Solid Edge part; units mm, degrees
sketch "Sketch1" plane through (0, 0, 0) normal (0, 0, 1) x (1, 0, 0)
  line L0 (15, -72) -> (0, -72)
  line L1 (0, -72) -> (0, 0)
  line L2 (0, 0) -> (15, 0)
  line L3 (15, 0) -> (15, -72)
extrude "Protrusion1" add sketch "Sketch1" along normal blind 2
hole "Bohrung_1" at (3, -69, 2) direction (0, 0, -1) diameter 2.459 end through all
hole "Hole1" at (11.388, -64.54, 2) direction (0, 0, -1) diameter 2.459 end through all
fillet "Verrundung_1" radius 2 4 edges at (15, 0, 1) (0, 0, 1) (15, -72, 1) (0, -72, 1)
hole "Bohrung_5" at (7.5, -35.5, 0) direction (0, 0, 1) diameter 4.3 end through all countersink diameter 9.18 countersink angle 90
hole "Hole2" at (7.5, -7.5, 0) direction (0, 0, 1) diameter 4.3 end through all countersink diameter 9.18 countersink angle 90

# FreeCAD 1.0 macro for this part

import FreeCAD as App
import Part
import Sketcher

V = App.Vector


def edges_at(feature, points):
    """Names of the edges that pass closest to the given points."""
    edges = feature.Shape.Edges
    near = lambda p: min(range(len(edges)), key=lambda i: edges[i].distToShape(Part.Vertex(*p))[0])
    return sorted({f"Edge{near(p) + 1}" for p in points})


def add_polygon(sketch, points):
    """Adds a closed chain of lines whose ends are joined by coincident constraints."""
    first, n = sketch.GeometryCount, len(points)
    for a, b in zip(points, points[1:] + points[:1]):
        sketch.addGeometry(Part.LineSegment(App.Vector(*a, 0), App.Vector(*b, 0)), False)
    for i in range(n):
        sketch.addConstraint(Sketcher.Constraint("Coincident", first + i, 2, first + (i + 1) % n, 1))

doc = App.newDocument("Part")
body = doc.addObject("PartDesign::Body", "Body")

# Sketch on XY plane
sketch1 = body.newObject("Sketcher::SketchObject", "Sketch")
sketch1.AttachmentSupport = (doc.getObject("XY_Plane"), [""])
sketch1.MapMode = "FlatFace"
add_polygon(sketch1, [(0, -72), (15, -72), (15, 0), (0, 0)])  # lines 0-3
sketch1.addConstraint(Sketcher.Constraint("Horizontal", 0))
sketch1.addConstraint(Sketcher.Constraint("Vertical", 1))
sketch1.addConstraint(Sketcher.Constraint("Horizontal", 2))
sketch1.addConstraint(Sketcher.Constraint("Vertical", 3))
sketch1.addConstraint(Sketcher.Constraint("Coincident", 2, 2, -1, 1))
sketch1.addConstraint(Sketcher.Constraint("DistanceX", 0, 1, 0, 2, 15.0))
sketch1.addConstraint(Sketcher.Constraint("DistanceY", 1, 1, 1, 2, 72.0))
pad1 = body.newObject("PartDesign::Pad", "Pad")
pad1.Profile = sketch1
pad1.Length = 2

# Sketch on XY plane
sketch2 = body.newObject("Sketcher::SketchObject", "Sketch001")
sketch2.AttachmentSupport = (doc.getObject("XY_Plane"), [""])
sketch2.MapMode = "FlatFace"
sketch2.AttachmentOffset = App.Placement(V(0, 0, 2), App.Rotation())
sketch2.addGeometry(Part.Circle(V(3, -69, 0), V(0, 0, 1), 1.2295), False)
sketch2.addConstraint(Sketcher.Constraint("Diameter", 0, 2.459))
sketch2.addConstraint(Sketcher.Constraint("DistanceX", -1, 1, 0, 3, 3.0))
sketch2.addConstraint(Sketcher.Constraint("DistanceY", 0, 3, -1, 1, 69.0))
doc.recompute()
hole = body.newObject("PartDesign::Hole", "Hole")
hole.Profile = sketch2
hole.ThreadType = "None"
hole.Diameter = 2.459
hole.DepthType = "ThroughAll"

# Sketch on XY plane
sketch3 = body.newObject("Sketcher::SketchObject", "Sketch002")
sketch3.AttachmentSupport = (doc.getObject("XY_Plane"), [""])
sketch3.MapMode = "FlatFace"
sketch3.AttachmentOffset = App.Placement(V(0, 0, 2), App.Rotation())
sketch3.addGeometry(Part.Circle(V(11.388, -64.54, 0), V(0, 0, 1), 1.2295), False)
sketch3.addConstraint(Sketcher.Constraint("Diameter", 0, 2.459))
sketch3.addConstraint(Sketcher.Constraint("DistanceY", 0, 3, -1, 1, 64.54))
sketch3.addConstraint(Sketcher.Constraint("DistanceX", -1, 1, 0, 3, 11.388))
doc.recompute()
hole2 = body.newObject("PartDesign::Hole", "Hole001")
hole2.Profile = sketch3
hole2.ThreadType = "None"
hole2.Diameter = 2.459
hole2.DepthType = "ThroughAll"
doc.recompute()

fillet = body.newObject("PartDesign::Fillet", "Fillet")
fillet.Base = (hole2, edges_at(hole2, [
    (15, 0, 1),
    (0, 0, 1),
    (15, -72, 1),
    (0, -72, 1),
]))
fillet.Radius = 2

# Sketch on XY plane
sketch4 = body.newObject("Sketcher::SketchObject", "Sketch003")
sketch4.AttachmentSupport = (doc.getObject("XY_Plane"), [""])
sketch4.MapMode = "FlatFace"
sketch4.addGeometry(Part.Circle(V(7.5, -35.5, 0), V(0, 0, 1), 2.15), False)
sketch4.addConstraint(Sketcher.Constraint("Diameter", 0, 4.3))
sketch4.addConstraint(Sketcher.Constraint("DistanceX", -1, 1, 0, 3, 7.5))
sketch4.addConstraint(Sketcher.Constraint("DistanceY", 0, 3, -1, 1, 35.5))
doc.recompute()
hole3 = body.newObject("PartDesign::Hole", "Hole002")
hole3.Profile = sketch4
hole3.ThreadType = "None"
hole3.Diameter = 4.3
hole3.DepthType = "ThroughAll"
hole3.HoleCutType = "Countersink"
hole3.HoleCutDiameter = 9.18
hole3.HoleCutCountersinkAngle = 90
hole3.Reversed = True

# Sketch on XY plane
sketch5 = body.newObject("Sketcher::SketchObject", "Sketch004")
sketch5.AttachmentSupport = (doc.getObject("XY_Plane"), [""])
sketch5.MapMode = "FlatFace"
sketch5.addGeometry(Part.Circle(V(7.5, -7.5, 0), V(0, 0, 1), 2.15), False)
sketch5.addConstraint(Sketcher.Constraint("Diameter", 0, 4.3))
sketch5.addConstraint(Sketcher.Constraint("DistanceX", -1, 1, 0, 3, 7.5))
sketch5.addConstraint(Sketcher.Constraint("DistanceY", 0, 3, -1, 1, 7.5))
doc.recompute()
hole4 = body.newObject("PartDesign::Hole", "Hole003")
hole4.Profile = sketch5
hole4.ThreadType = "None"
hole4.Diameter = 4.3
hole4.DepthType = "ThroughAll"
hole4.HoleCutType = "Countersink"
hole4.HoleCutDiameter = 9.18
hole4.HoleCutCountersinkAngle = 90
hole4.Reversed = True

doc.recompute()
